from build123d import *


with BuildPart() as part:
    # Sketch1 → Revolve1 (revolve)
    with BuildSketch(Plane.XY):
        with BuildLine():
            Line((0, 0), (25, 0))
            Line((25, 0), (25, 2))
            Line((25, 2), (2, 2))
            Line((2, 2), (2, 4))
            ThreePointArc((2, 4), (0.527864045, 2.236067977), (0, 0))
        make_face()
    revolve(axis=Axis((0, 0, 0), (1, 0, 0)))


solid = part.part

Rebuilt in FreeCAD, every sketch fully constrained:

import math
import FreeCAD as App
import Part
import Sketcher

V = App.Vector
Q = App.Units.Quantity

doc = App.newDocument("Part")
body = doc.addObject("PartDesign::Body", "Body")

# Sketch on XY plane
sketch1 = body.newObject("Sketcher::SketchObject", "Sketch")
sketch1.AttachmentSupport = (doc.getObject("XY_Plane"), [""])
sketch1.MapMode = "FlatFace"
sketch1.addGeometry([
    Part.LineSegment(V(0, 0, 0), V(25, 0, 0)),  # 0
    Part.LineSegment(V(25, 0, 0), V(25, 2, 0)),  # 1
    Part.LineSegment(V(25, 2, 0), V(2, 2, 0)),  # 2
    Part.LineSegment(V(2, 2, 0), V(2, 4, 0)),  # 3
    Part.ArcOfCircle(Part.Circle(V(5, 0, 0), V(0, 0, 1), 5), math.radians(127), math.radians(180)),  # 4
], False)
sketch1.addConstraint([
    Sketcher.Constraint("Coincident", 0, 2, 1, 1),
    Sketcher.Constraint("Coincident", 1, 2, 2, 1),
    Sketcher.Constraint("Coincident", 2, 2, 3, 1),
    Sketcher.Constraint("Coincident", 3, 2, 4, 1),
    Sketcher.Constraint("Coincident", 4, 2, 0, 1),
    Sketcher.Constraint("Horizontal", 0),
    Sketcher.Constraint("Vertical", 1),
    Sketcher.Constraint("Horizontal", 2),
    Sketcher.Constraint("Vertical", 3),
    Sketcher.Constraint("Coincident", 4, 2, -1, 1),
    Sketcher.Constraint("PointOnObject", 4, 3, -1),
    Sketcher.Constraint("Equal", 1, 3),
    Sketcher.Constraint("Radius", 4, Q("5 mm")),
    Sketcher.Constraint("DistanceX", 0, 1, 0, 2, Q("25 mm")),
    Sketcher.Constraint("DistanceX", 2, 2, 2, 1, Q("23 mm")),
])
revolution = body.newObject("PartDesign::Revolution", "Revolution")
revolution.Profile = sketch1
revolution.ReferenceAxis = (sketch1, ["H_Axis"])
revolution.Angle = 360

doc.recompute()
